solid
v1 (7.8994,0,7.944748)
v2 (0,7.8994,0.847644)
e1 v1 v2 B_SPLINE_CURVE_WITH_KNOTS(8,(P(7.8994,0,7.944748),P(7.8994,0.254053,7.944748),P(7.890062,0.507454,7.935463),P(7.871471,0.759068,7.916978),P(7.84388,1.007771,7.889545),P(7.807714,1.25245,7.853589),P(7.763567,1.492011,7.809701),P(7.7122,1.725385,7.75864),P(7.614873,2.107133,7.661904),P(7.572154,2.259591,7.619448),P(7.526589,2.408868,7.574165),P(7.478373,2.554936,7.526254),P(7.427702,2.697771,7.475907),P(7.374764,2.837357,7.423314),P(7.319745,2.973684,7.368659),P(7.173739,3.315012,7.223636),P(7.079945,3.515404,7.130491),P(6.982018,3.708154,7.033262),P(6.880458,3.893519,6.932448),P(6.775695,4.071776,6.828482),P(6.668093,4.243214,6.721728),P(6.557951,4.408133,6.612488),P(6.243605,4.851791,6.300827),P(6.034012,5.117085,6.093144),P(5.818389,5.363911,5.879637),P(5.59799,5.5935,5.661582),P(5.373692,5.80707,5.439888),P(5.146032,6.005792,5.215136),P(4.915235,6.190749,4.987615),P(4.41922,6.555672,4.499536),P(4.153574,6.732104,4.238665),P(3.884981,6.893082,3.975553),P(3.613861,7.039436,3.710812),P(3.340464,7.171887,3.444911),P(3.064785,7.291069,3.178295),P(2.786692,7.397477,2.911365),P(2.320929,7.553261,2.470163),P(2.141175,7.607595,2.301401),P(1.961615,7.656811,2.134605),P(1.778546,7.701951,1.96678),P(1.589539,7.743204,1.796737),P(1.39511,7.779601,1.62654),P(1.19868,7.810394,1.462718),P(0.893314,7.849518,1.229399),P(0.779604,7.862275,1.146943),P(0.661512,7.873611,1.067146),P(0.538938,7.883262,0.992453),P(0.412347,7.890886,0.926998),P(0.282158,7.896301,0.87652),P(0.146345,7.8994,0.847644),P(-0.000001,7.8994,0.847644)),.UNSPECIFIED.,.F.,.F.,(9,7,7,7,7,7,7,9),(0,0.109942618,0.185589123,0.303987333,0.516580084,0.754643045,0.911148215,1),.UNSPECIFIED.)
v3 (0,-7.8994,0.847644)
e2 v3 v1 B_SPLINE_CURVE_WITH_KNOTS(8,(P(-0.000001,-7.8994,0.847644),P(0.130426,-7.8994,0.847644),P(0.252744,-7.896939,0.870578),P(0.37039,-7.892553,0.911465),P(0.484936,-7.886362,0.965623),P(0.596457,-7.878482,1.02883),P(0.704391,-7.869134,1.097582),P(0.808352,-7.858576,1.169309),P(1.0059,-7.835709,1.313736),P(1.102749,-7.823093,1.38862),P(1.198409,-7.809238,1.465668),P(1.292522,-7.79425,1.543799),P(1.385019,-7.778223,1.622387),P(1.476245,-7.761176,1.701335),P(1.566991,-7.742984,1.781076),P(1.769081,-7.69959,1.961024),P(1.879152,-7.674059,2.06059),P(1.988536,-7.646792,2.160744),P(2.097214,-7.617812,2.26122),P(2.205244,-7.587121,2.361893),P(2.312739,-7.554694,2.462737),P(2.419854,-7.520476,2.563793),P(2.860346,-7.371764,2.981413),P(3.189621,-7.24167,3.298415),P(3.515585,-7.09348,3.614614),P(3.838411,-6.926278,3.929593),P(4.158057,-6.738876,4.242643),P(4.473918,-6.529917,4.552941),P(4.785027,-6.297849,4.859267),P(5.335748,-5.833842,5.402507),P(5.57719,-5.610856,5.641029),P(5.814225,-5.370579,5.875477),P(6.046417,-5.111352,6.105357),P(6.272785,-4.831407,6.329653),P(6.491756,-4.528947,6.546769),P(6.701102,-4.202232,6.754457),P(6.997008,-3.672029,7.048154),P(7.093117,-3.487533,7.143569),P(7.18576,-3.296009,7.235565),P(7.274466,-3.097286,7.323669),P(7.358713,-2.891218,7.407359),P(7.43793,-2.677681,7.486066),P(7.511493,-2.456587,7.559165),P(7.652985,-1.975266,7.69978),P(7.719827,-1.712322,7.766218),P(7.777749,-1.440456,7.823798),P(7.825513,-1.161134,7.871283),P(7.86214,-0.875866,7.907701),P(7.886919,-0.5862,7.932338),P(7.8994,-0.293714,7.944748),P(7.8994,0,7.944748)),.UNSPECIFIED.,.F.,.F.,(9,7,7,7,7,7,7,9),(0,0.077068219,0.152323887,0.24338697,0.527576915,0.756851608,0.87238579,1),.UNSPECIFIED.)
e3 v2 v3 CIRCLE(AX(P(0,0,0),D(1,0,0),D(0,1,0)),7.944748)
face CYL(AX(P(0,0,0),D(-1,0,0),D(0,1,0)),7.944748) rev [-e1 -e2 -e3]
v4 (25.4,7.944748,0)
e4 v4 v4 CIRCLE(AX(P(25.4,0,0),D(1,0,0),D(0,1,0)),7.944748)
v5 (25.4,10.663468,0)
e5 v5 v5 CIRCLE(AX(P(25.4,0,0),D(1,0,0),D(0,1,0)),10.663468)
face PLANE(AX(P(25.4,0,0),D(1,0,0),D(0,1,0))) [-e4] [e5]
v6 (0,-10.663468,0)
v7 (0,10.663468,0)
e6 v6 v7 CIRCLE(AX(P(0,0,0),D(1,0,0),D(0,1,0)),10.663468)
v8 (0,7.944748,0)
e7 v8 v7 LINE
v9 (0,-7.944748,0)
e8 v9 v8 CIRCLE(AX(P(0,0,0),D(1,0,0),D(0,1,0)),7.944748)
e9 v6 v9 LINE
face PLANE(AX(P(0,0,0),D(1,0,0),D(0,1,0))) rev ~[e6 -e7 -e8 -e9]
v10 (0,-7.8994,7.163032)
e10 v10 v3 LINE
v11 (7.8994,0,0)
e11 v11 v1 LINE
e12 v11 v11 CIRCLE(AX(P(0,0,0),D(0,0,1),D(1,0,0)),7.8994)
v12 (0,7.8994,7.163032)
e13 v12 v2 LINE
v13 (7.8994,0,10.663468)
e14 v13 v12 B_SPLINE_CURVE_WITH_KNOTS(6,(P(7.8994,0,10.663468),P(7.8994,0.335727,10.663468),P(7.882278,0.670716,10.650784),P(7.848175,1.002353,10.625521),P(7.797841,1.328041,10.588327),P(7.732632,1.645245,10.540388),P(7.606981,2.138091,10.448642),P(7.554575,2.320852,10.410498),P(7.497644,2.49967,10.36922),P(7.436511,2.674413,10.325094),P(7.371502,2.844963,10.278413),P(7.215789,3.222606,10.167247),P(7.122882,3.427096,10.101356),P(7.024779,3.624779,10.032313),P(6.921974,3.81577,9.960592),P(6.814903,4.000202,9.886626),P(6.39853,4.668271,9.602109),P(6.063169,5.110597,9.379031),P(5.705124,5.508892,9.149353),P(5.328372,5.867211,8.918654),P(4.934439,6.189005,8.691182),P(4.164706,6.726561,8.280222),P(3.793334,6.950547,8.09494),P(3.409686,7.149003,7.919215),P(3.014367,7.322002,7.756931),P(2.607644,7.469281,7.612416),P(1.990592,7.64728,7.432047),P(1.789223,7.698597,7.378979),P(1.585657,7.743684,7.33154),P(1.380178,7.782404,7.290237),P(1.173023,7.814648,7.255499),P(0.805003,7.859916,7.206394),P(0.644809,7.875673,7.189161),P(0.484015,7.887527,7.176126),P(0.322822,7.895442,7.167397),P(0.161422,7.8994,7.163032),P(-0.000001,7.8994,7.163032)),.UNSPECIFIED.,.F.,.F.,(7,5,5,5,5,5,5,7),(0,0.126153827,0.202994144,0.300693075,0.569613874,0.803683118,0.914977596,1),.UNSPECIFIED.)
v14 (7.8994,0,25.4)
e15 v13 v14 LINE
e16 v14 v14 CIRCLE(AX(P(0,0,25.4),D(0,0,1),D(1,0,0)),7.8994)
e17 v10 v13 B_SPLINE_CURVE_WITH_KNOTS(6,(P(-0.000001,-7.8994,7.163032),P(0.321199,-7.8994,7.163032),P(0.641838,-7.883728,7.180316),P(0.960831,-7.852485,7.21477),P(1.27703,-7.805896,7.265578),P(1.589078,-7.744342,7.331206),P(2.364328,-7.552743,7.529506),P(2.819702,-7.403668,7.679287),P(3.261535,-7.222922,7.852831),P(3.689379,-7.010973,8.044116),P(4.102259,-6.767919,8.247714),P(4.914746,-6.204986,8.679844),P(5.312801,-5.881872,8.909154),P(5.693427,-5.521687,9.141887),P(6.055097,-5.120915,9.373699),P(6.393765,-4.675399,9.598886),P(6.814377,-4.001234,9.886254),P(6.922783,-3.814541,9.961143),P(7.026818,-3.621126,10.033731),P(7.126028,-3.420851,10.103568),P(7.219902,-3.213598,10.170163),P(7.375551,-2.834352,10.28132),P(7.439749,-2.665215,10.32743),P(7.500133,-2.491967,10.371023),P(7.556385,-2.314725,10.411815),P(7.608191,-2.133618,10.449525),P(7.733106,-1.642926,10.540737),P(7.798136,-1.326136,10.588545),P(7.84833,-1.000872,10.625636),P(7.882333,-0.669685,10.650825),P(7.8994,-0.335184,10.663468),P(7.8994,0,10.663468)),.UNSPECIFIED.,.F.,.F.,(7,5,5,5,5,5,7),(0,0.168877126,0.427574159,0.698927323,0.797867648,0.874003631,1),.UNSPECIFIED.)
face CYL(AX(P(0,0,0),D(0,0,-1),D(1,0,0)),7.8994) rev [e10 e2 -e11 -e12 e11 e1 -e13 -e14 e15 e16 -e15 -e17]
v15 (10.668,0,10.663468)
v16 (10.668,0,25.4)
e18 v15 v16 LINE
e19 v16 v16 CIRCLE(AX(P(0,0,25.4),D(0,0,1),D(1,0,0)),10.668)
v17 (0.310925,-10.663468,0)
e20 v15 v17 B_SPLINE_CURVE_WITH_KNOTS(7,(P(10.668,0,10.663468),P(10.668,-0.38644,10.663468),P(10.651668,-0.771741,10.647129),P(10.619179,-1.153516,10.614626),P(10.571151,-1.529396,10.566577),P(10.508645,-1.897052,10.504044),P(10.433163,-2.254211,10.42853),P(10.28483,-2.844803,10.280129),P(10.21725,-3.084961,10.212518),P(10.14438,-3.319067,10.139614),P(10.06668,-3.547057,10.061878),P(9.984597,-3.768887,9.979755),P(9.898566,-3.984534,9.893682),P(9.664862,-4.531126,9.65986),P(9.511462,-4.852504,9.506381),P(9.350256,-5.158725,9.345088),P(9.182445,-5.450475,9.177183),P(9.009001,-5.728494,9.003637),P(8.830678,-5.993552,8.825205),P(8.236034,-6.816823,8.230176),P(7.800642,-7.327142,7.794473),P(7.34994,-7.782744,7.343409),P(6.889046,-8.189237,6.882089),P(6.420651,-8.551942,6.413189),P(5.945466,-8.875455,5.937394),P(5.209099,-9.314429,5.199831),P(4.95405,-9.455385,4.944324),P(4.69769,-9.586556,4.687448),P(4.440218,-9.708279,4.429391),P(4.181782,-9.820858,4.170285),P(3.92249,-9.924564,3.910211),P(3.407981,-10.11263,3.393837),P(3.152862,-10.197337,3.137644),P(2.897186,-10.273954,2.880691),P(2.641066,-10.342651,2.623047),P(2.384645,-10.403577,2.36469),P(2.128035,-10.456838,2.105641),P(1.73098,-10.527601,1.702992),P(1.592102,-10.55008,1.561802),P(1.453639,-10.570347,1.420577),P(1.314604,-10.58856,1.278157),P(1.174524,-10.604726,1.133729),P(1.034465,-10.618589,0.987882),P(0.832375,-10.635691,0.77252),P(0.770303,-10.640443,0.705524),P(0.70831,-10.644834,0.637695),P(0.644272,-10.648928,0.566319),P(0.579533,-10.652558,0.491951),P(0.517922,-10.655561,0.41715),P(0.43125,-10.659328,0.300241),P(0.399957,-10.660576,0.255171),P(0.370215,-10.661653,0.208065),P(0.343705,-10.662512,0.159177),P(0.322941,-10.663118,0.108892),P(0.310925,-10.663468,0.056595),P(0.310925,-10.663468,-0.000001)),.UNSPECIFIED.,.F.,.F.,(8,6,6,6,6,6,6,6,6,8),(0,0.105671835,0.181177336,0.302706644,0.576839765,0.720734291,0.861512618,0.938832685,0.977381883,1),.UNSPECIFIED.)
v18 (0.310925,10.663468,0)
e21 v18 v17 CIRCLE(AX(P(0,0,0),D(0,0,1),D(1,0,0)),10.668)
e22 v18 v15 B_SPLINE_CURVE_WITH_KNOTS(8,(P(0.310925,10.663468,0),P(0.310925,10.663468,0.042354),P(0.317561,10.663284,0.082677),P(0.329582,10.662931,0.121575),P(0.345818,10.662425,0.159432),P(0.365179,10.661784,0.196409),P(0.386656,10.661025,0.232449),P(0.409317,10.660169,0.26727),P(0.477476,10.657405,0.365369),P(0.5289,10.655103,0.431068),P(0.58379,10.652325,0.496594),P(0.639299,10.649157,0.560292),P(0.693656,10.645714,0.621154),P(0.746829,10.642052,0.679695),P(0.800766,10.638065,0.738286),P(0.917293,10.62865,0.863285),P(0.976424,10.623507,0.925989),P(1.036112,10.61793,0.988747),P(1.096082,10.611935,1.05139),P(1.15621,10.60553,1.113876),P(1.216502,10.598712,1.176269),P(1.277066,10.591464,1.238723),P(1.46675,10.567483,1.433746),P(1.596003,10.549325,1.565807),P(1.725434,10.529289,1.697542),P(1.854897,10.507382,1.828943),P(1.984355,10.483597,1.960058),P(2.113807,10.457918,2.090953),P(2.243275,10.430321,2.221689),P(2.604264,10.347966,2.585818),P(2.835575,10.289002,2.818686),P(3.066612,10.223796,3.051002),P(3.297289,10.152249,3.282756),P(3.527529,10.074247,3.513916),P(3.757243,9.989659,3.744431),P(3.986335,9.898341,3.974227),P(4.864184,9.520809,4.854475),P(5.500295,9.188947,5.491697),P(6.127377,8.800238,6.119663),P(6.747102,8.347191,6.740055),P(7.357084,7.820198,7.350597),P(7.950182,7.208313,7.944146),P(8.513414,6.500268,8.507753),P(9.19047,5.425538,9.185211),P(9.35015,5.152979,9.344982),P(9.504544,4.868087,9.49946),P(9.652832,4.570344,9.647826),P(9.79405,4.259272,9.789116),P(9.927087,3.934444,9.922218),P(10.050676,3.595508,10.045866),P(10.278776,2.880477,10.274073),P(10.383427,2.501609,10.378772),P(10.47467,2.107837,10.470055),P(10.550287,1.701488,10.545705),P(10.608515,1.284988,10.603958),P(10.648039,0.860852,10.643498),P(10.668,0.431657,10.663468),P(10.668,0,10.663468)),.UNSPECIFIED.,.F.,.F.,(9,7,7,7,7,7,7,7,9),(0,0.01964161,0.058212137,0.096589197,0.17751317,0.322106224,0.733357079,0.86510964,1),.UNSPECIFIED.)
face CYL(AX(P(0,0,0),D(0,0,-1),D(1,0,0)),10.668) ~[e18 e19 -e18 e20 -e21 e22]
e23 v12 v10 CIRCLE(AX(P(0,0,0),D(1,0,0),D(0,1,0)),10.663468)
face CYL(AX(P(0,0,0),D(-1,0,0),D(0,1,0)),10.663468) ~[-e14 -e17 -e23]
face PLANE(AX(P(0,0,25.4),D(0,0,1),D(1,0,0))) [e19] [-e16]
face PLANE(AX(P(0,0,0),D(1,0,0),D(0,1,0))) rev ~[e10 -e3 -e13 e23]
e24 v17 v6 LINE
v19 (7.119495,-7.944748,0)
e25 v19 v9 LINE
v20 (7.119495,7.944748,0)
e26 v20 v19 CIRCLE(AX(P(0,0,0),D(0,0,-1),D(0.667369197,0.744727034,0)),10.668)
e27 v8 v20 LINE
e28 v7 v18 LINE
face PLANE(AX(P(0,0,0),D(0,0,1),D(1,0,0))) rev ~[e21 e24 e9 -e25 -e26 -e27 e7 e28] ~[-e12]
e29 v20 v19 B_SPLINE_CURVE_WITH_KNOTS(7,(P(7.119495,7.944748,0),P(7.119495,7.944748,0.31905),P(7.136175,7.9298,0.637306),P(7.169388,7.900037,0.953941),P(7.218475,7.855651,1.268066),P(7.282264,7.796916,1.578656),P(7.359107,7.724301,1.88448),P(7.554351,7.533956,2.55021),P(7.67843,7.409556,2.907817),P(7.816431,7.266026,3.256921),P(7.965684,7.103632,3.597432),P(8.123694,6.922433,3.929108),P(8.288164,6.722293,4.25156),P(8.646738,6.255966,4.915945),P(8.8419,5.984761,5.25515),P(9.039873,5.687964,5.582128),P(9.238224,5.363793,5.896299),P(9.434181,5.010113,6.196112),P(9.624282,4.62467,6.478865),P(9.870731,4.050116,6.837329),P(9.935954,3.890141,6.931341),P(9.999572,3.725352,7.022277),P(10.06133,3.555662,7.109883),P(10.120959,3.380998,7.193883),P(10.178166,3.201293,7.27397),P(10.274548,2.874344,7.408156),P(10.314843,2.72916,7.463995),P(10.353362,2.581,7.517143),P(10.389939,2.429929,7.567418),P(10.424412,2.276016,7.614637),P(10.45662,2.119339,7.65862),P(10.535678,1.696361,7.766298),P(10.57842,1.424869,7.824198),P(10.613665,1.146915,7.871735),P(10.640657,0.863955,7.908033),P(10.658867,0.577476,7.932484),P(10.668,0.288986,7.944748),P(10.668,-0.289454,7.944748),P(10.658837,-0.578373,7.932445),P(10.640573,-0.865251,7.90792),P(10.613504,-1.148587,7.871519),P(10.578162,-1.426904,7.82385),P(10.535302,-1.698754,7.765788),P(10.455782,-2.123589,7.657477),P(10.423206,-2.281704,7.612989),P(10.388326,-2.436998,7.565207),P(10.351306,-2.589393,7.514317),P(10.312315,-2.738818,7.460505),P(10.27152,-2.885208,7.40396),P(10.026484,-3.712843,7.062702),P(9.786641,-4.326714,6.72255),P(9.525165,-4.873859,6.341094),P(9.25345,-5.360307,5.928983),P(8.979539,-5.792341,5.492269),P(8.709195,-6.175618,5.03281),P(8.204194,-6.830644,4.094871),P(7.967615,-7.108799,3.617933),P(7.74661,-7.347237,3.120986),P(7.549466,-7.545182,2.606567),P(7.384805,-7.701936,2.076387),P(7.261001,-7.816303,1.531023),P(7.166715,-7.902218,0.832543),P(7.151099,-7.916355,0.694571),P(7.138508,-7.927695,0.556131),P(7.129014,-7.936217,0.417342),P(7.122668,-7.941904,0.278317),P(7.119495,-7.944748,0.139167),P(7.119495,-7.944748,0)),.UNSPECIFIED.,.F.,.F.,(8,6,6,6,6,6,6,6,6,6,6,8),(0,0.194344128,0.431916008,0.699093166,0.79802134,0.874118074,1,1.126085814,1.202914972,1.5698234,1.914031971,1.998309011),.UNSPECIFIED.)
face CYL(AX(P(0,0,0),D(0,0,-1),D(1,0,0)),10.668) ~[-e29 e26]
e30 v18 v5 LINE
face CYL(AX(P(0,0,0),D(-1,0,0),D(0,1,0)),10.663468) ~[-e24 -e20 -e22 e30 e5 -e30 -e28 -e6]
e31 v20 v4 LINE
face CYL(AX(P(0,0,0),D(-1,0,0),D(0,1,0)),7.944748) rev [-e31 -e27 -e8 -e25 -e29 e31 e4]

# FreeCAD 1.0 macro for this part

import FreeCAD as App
import Part
import Sketcher
from FreeCAD import Vector
Q = App.Units.Quantity

doc = App.newDocument("Part")
body = doc.addObject("PartDesign::Body", "Body")

# Sketch on XY plane
sketch1 = body.newObject("Sketcher::SketchObject", "Sketch")
sketch1.AttachmentSupport = (doc.getObject("XY_Plane"), [""])
sketch1.MapMode = "FlatFace"
sketch1.addGeometry(Part.Circle(Vector(0, 0, 0), Vector(0, 0, 1), 11), False)
sketch1.addGeometry(Part.Circle(Vector(0, 0, 0), Vector(0, 0, 1), 8), False)
sketch1.addConstraint(Sketcher.Constraint("Coincident", 0, 3, -1, 1))
sketch1.addConstraint(Sketcher.Constraint("Coincident", 1, 3, -1, 1))
sketch1.addConstraint(Sketcher.Constraint("Diameter", 0, Q("0.84 in")))
sketch1.addConstraint(Sketcher.Constraint("Diameter", 1, Q("0.622 in")))
pad1 = body.newObject("PartDesign::Pad", "Pad")
pad1.Profile = sketch1
pad1.Length = Q("1 in")

# Sketch on YZ plane
sketch2 = body.newObject("Sketcher::SketchObject", "Sketch001")
sketch2.AttachmentSupport = (doc.getObject("YZ_Plane"), [""])
sketch2.MapMode = "FlatFace"
sketch2.addGeometry(Part.Circle(Vector(0, 0, 0), Vector(0, 0, 1), 11), False)
sketch2.addGeometry(Part.Circle(Vector(0, 0, 0), Vector(0, 0, 1), 8), False)
sketch2.addConstraint(Sketcher.Constraint("Coincident", 0, 3, -1, 1))
sketch2.addConstraint(Sketcher.Constraint("Coincident", 1, 3, -1, 1))
sketch2.addConstraint(Sketcher.Constraint("Diameter", 0, 21.326936))
sketch2.addConstraint(Sketcher.Constraint("Diameter", 1, 15.889496))
pad2 = body.newObject("PartDesign::Pad", "Pad001")
pad2.Profile = sketch2
pad2.Length = Q("1 in")

doc.recompute()
